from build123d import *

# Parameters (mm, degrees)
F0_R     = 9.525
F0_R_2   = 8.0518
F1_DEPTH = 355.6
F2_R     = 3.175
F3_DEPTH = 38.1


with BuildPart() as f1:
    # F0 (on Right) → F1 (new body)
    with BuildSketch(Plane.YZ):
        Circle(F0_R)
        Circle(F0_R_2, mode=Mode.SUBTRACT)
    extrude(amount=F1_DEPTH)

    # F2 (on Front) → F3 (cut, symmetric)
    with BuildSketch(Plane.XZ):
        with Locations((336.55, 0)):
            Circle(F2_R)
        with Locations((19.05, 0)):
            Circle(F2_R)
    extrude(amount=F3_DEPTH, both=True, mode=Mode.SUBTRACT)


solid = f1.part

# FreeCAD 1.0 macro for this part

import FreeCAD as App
import Part
import Sketcher
Q = App.Units.Quantity

doc = App.newDocument("Part")
body = doc.addObject("PartDesign::Body", "Body")

# Sketch on YZ plane
sketch1 = doc.addObject("Sketcher::SketchObject", "Sketch")
body.addObject(sketch1)
sketch1.AttachmentSupport = (doc.YZ_Plane, [""])
sketch1.MapMode = "FlatFace"
sketch1.addGeometry(Part.Circle(App.Vector(0, 0, 0), App.Vector(0, 0, 1), 10), False)
sketch1.addGeometry(Part.Circle(App.Vector(0, 0, 0), App.Vector(0, 0, 1), 8), False)
sketch1.addConstraint(Sketcher.Constraint("Coincident", 0, 3, -1, 1))
sketch1.addConstraint(Sketcher.Constraint("Coincident", 1, 3, -1, 1))
sketch1.addConstraint(Sketcher.Constraint("Diameter", 0, Q("0.75 in")))
sketch1.addConstraint(Sketcher.Constraint("Diameter", 1, Q("0.634 in")))
pad1 = doc.addObject("PartDesign::Pad", "Pad")
body.addObject(pad1)
pad1.Profile = sketch1
pad1.Length = Q("14 in")

# Sketch on XZ plane
sketch2 = doc.addObject("Sketcher::SketchObject", "Sketch001")
body.addObject(sketch2)
sketch2.AttachmentSupport = (doc.XZ_Plane, [""])
sketch2.MapMode = "FlatFace"
sketch2.addGeometry(Part.Circle(App.Vector(336.6, 0, 0), App.Vector(0, 0, 1), 3.2), False)
sketch2.addGeometry(Part.Circle(App.Vector(19.1, 0, 0), App.Vector(0, 0, 1), 3.2), False)
sketch2.addConstraint(Sketcher.Constraint("Equal", 0, 1))
sketch2.addConstraint(Sketcher.Constraint("PointOnObject", 0, 3, -1))
sketch2.addConstraint(Sketcher.Constraint("PointOnObject", 1, 3, -1))
sketch2.addConstraint(Sketcher.Constraint("Diameter", 0, Q("0.25 in")))
sketch2.addConstraint(Sketcher.Constraint("DistanceX", 1, 3, 0, 3, Q("12.5 in")))
sketch2.addConstraint(Sketcher.Constraint("DistanceX", -1, 1, 0, 3, Q("13.25 in")))
pocket1 = doc.addObject("PartDesign::Pocket", "Pocket")
body.addObject(pocket1)
pocket1.Profile = sketch2
pocket1.Length = Q("3 in")
pocket1.Midplane = True

doc.recompute()
